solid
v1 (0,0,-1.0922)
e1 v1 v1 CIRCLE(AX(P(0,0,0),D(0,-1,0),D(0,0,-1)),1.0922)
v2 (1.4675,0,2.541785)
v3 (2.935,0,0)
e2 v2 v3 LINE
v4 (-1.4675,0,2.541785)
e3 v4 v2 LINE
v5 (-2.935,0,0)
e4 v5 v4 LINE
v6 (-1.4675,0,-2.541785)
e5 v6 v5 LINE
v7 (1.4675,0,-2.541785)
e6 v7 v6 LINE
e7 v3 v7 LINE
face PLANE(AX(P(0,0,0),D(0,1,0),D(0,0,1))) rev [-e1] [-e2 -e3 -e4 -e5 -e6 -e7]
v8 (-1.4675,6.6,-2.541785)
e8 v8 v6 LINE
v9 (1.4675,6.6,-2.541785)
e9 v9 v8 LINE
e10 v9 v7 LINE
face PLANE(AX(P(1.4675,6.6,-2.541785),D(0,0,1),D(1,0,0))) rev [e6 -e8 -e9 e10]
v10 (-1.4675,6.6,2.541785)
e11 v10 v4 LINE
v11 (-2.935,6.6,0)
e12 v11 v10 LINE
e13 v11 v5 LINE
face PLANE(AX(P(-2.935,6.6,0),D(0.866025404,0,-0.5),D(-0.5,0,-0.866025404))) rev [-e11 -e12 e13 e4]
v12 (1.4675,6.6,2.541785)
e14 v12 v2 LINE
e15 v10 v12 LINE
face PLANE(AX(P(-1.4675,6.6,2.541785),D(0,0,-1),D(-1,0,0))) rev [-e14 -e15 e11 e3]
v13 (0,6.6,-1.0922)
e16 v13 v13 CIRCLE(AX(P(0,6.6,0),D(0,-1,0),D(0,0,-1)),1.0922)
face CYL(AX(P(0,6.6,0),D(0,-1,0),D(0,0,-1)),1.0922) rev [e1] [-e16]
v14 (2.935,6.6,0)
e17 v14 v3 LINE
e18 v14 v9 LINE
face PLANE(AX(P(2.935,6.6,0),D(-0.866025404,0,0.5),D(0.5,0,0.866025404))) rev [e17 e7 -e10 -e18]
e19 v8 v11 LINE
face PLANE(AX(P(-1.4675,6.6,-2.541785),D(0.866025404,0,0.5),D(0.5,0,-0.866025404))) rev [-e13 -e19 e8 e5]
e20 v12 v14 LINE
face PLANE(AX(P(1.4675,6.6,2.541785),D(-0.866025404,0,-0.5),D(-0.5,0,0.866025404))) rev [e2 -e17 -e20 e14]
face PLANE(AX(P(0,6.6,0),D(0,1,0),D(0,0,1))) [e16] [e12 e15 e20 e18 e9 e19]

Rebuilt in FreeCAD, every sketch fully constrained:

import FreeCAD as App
import Part
import Sketcher
Q = App.Units.Quantity

doc = App.newDocument("Part")
params = doc.addObject("Spreadsheet::Sheet", "Params")
for row, (alias, value) in enumerate([
    ("pad1_length", "6.6 mm"),
    ("pocket1_length", "6.6 mm"),
], start=1):
    params.set(f"A{row}", alias)
    params.set(f"B{row}", "=" + value)
    params.setAlias(f"B{row}", alias)

body = doc.addObject("PartDesign::Body", "Body")

# Sketch on XZ plane
sketch1 = doc.addObject("Sketcher::SketchObject", "Sketch")
body.addObject(sketch1)
sketch1.AttachmentSupport = (doc.XZ_Plane, [""])
sketch1.MapMode = "FlatFace"
sketch1.addGeometry([
    Part.LineSegment(App.Vector(-1.5, -2.5, 0), App.Vector(-2.9, 0, 0)),  # 0
    Part.LineSegment(App.Vector(-2.9, 0, 0), App.Vector(-1.5, 2.5, 0)),  # 1
    Part.LineSegment(App.Vector(-1.5, 2.5, 0), App.Vector(1.5, 2.5, 0)),  # 2
    Part.LineSegment(App.Vector(1.5, 2.5, 0), App.Vector(2.9, 0, 0)),  # 3
    Part.LineSegment(App.Vector(2.9, 0, 0), App.Vector(1.5, -2.5, 0)),  # 4
    Part.LineSegment(App.Vector(1.5, -2.5, 0), App.Vector(-1.5, -2.5, 0)),  # 5
], False)
sketch1.addConstraint([
    Sketcher.Constraint("Coincident", 0, 2, 1, 1),
    Sketcher.Constraint("Coincident", 1, 2, 2, 1),
    Sketcher.Constraint("Coincident", 2, 2, 3, 1),
    Sketcher.Constraint("Coincident", 3, 2, 4, 1),
    Sketcher.Constraint("Coincident", 4, 2, 5, 1),
    Sketcher.Constraint("Coincident", 5, 2, 0, 1),
    Sketcher.Constraint("Horizontal", 2),
    Sketcher.Constraint("Horizontal", 5),
    Sketcher.Constraint("Symmetric", 0, 2, 3, 2, -1, 1),
    Sketcher.Constraint("Symmetric", 1, 2, 4, 2, -1, 1),
    Sketcher.Constraint("PointOnObject", 0, 2, -1),
    Sketcher.Constraint("Parallel", 0, 3),
    Sketcher.Constraint("Vertical", 2, 2, 4, 2),
    Sketcher.Constraint("Angle", 0, Q("120 deg")),
    Sketcher.Constraint("DistanceX", 2, 1, 2, 2, Q("2.935 mm")),
    Sketcher.Constraint("DistanceX", 0, 2, 3, 2, Q("5.87 mm")),
])
pad1 = doc.addObject("PartDesign::Pad", "Pad")
body.addObject(pad1)
pad1.Profile = sketch1
pad1.setExpression("Length", "Params.pad1_length")
pad1.Reversed = True

# Sketch on XZ plane
sketch2 = doc.addObject("Sketcher::SketchObject", "Sketch001")
body.addObject(sketch2)
sketch2.AttachmentSupport = (doc.XZ_Plane, [""])
sketch2.MapMode = "FlatFace"
sketch2.addGeometry(Part.Circle(App.Vector(0, 0, 0), App.Vector(0, 0, 1), 1.1), False)
sketch2.addConstraint([
    Sketcher.Constraint("Coincident", 0, 3, -1, 1),
    Sketcher.Constraint("Diameter", 0, Q("2.1844 mm")),
])
pocket1 = doc.addObject("PartDesign::Pocket", "Pocket")
body.addObject(pocket1)
pocket1.Profile = sketch2
pocket1.setExpression("Length", "Params.pocket1_length")

doc.recompute()
